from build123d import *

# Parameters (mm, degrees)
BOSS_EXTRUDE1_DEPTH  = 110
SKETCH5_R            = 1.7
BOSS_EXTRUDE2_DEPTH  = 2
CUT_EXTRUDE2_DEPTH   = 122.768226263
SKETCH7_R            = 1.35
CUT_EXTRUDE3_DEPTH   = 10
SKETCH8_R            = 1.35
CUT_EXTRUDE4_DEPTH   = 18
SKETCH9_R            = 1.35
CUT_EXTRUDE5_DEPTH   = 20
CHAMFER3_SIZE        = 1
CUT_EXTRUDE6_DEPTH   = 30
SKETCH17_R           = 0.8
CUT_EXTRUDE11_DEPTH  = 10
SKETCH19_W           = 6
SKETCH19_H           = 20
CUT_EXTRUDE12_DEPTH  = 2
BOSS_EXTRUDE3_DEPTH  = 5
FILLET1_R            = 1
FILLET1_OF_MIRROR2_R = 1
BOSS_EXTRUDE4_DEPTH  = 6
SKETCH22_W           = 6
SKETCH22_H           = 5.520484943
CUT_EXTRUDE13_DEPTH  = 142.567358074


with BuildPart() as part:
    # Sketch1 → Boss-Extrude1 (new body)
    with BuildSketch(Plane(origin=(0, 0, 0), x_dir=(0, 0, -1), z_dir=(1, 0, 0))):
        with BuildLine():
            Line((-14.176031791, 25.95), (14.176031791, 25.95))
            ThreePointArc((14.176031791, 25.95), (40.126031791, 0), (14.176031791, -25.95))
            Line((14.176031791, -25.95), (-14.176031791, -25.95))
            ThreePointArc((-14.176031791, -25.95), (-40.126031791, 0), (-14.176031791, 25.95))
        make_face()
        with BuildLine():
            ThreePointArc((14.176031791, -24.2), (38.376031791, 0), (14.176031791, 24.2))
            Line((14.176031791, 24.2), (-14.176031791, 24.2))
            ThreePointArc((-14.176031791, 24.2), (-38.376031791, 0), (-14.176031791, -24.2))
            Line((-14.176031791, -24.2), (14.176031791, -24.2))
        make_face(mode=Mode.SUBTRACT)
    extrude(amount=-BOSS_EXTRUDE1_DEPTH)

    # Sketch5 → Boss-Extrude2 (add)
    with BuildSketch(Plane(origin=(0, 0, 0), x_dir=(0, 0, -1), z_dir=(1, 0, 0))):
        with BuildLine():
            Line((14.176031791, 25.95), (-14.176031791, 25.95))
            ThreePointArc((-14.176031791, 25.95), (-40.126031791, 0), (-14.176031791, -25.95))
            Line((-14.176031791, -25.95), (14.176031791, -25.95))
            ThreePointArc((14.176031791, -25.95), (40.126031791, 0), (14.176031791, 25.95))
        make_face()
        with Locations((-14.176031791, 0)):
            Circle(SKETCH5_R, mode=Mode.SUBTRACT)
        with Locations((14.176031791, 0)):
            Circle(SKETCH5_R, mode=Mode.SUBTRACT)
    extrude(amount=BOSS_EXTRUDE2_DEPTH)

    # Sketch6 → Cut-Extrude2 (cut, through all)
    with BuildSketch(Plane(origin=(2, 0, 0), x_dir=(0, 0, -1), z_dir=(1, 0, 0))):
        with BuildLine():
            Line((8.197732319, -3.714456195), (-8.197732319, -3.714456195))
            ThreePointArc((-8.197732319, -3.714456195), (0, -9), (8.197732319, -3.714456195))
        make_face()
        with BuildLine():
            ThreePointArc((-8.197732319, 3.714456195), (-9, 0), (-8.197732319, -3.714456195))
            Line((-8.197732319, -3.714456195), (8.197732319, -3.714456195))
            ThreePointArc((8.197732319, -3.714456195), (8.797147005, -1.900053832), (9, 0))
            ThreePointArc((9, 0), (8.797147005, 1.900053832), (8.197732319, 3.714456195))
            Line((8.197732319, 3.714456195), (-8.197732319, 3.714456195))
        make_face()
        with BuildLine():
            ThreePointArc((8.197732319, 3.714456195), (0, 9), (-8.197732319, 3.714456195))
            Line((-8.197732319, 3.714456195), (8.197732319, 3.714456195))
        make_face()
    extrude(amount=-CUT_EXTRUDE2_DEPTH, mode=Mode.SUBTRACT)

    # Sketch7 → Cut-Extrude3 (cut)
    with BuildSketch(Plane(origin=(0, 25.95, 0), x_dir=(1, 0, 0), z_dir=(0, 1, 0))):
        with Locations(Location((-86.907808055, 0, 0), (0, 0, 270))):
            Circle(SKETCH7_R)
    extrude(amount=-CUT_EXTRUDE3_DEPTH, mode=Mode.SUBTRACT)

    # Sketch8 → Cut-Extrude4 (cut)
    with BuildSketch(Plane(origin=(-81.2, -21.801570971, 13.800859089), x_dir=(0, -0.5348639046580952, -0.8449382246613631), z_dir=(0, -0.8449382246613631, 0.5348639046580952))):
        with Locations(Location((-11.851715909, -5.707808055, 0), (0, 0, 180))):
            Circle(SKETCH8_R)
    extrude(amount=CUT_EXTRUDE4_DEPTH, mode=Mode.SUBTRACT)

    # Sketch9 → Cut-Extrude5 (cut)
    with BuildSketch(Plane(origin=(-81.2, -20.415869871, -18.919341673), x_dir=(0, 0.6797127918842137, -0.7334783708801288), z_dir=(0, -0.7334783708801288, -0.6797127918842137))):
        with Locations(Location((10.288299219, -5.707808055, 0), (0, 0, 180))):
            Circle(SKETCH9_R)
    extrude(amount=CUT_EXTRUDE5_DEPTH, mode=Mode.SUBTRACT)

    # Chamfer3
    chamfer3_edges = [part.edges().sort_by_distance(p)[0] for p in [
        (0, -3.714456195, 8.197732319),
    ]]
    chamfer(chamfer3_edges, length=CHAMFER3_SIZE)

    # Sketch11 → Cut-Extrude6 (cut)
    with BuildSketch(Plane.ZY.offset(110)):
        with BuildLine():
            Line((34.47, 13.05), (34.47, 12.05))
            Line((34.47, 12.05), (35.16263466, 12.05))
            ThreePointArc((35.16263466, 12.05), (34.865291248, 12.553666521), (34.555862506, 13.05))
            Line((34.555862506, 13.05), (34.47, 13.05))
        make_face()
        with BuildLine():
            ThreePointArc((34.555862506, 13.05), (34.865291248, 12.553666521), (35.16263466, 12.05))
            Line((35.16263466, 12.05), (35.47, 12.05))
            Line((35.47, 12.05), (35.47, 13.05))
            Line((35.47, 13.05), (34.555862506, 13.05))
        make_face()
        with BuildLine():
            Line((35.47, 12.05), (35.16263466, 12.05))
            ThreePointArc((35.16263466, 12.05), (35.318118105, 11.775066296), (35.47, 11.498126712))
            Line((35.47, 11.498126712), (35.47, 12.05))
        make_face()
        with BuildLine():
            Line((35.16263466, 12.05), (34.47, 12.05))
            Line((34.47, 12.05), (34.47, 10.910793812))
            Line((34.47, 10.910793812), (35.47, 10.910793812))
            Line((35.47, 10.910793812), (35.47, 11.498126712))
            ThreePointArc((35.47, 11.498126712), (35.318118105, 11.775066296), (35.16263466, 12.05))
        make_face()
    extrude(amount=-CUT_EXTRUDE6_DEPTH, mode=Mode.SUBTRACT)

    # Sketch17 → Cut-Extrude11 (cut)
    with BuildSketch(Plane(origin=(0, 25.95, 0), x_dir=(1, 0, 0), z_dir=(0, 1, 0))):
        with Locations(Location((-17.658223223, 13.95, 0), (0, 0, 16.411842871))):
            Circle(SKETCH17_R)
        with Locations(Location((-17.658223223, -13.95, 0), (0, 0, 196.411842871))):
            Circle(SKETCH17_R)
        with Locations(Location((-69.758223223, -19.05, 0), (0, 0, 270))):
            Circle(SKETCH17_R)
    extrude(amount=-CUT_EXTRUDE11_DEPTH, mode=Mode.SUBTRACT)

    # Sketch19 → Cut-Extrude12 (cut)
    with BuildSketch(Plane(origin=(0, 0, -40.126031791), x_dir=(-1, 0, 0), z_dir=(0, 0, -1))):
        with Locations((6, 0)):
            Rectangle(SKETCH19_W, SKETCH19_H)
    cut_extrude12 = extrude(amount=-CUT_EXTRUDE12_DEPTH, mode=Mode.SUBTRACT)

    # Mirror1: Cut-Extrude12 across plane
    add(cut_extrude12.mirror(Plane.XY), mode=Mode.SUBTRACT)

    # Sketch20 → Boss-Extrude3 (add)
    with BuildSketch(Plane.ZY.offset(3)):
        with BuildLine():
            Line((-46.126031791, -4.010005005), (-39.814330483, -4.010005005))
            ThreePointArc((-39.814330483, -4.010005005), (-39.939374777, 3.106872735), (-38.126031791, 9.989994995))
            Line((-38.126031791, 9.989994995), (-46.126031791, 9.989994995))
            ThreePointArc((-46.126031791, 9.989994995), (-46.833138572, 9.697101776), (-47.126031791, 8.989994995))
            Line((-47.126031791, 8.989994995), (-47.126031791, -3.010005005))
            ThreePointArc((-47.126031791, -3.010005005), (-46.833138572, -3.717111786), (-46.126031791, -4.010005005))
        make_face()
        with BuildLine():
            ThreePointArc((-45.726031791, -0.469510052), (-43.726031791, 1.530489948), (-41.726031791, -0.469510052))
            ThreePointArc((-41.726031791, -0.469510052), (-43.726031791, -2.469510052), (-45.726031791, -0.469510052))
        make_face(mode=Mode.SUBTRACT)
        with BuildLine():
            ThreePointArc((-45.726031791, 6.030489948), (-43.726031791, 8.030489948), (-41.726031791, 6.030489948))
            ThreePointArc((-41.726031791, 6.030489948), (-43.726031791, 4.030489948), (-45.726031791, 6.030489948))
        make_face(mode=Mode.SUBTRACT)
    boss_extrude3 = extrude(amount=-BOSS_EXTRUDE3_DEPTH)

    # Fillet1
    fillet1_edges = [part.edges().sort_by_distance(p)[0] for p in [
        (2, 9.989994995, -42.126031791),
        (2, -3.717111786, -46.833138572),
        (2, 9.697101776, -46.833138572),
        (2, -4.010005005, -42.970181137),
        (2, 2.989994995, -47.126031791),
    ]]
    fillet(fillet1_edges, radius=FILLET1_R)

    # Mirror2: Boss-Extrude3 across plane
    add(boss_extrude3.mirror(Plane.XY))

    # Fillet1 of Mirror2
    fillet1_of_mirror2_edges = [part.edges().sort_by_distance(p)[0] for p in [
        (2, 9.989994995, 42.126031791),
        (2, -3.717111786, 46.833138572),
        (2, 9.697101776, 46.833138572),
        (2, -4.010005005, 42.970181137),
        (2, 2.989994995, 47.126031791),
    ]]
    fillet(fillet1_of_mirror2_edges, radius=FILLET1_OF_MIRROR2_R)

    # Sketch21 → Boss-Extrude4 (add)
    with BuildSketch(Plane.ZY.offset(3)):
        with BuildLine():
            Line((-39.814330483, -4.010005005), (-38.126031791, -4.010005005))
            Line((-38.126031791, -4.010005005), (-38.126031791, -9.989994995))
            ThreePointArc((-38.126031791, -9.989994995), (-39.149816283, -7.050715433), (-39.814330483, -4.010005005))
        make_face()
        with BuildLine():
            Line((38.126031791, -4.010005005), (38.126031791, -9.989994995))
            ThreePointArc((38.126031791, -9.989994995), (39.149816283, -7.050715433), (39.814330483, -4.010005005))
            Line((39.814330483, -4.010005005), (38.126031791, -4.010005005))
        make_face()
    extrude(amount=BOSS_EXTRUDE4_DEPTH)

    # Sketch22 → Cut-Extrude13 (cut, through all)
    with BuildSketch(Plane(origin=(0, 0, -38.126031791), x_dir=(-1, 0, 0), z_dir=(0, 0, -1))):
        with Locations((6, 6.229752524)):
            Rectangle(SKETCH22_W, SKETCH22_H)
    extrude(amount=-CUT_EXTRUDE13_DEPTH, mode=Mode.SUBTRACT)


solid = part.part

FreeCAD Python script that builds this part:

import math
import FreeCAD as App
import Part
import Sketcher

V = App.Vector


def edges_at(feature, points):
    """Names of the edges that pass closest to the given points."""
    edges = feature.Shape.Edges
    near = lambda p: min(range(len(edges)), key=lambda i: edges[i].distToShape(Part.Vertex(*p))[0])
    return sorted({f"Edge{near(p) + 1}" for p in points})


def add_polygon(sketch, points):
    """Adds a closed chain of lines whose ends are joined by coincident constraints."""
    first, n = sketch.GeometryCount, len(points)
    for a, b in zip(points, points[1:] + points[:1]):
        sketch.addGeometry(Part.LineSegment(App.Vector(*a, 0), App.Vector(*b, 0)), False)
    for i in range(n):
        sketch.addConstraint(Sketcher.Constraint("Coincident", first + i, 2, first + (i + 1) % n, 1))

doc = App.newDocument("Part")
params = doc.addObject("Spreadsheet::Sheet", "Params")
for row, (alias, value) in enumerate([
    ("sketch1_radius", "24.2 mm"),
    ("sketch1_radius2", "25.95 mm"),
    ("pad1_length", "110 mm"),
    ("sketch2_diameter", "3.4 mm"),
    ("sketch2_radius", "25.95 mm"),
    ("pad2_length", "2 mm"),
    ("sketch3_radius", "9 mm"),
    ("sketch4_diameter", "2.7 mm"),
    ("pocket2_length", "10 mm"),
    ("sketch5_diameter", "2.7 mm"),
    ("pocket3_length", "18 mm"),
    ("sketch6_diameter", "2.7 mm"),
    ("pocket4_length", "20 mm"),
    ("chamfer_size", "1 mm"),
    ("sketch7_height", "1 mm"),
    ("pocket5_length", "30 mm"),
    ("sketch8_diameter", "1.6 mm"),
    ("pocket6_length", "10 mm"),
    ("sketch9_width", "6 mm"),
    ("sketch9_height", "20 mm"),
    ("pocket7_length", "2 mm"),
    ("sketch10_diameter", "4 mm"),
    ("sketch10_radius", "1 mm"),
    ("sketch10_width", "12 mm"),
    ("sketch10_height", "8 mm"),
    ("sketch10_radius2", "25.95 mm"),
    ("pad3_length", "5 mm"),
    ("fillet_radius", "1 mm"),
    ("fillet2_radius", "1 mm"),
    ("sketch11_radius", "25.95 mm"),
    ("sketch11_height", "23.95 mm"),
    ("pad4_length", "6 mm"),
    ("sketch12_width", "6 mm"),
], start=1):
    params.set(f"A{row}", alias)
    params.set(f"B{row}", "=" + value)
    params.setAlias(f"B{row}", alias)

body = doc.addObject("PartDesign::Body", "Body")

# Sketch on YZ plane
sketch1 = body.newObject("Sketcher::SketchObject", "Sketch")
sketch1.AttachmentSupport = (doc.getObject("YZ_Plane"), [""])
sketch1.MapMode = "FlatFace"
sketch1.addGeometry([
    Part.LineSegment(V(26, -14, 0), V(26, 14, 0)),  # 0
    Part.ArcOfCircle(Part.Circle(V(0, 14, 0), V(0, 0, 1), 26), math.radians(0), math.radians(180)),  # 1
    Part.LineSegment(V(-26, 14, 0), V(-26, -14, 0)),  # 2
    Part.ArcOfCircle(Part.Circle(V(0, -14, 0), V(0, 0, 1), 26), math.radians(180), math.radians(360)),  # 3
    Part.LineSegment(V(-24, -14, 0), V(-24, 14, 0)),  # 4
    Part.ArcOfCircle(Part.Circle(V(0, 14, 0), V(0, 0, 1), 24), math.radians(0), math.radians(180)),  # 5
    Part.LineSegment(V(24, 14, 0), V(24, -14, 0)),  # 6
    Part.ArcOfCircle(Part.Circle(V(0, -14, 0), V(0, 0, 1), 24), math.radians(180), math.radians(360)),  # 7
], False)
sketch1.addConstraint([
    Sketcher.Constraint("Tangent", 0, 2, 1, 1),
    Sketcher.Constraint("Tangent", 1, 2, 2, 1),
    Sketcher.Constraint("Tangent", 2, 2, 3, 1),
    Sketcher.Constraint("Tangent", 3, 2, 0, 1),
    Sketcher.Constraint("Tangent", 4, 2, 5, 2),
    Sketcher.Constraint("Tangent", 5, 1, 6, 1),
    Sketcher.Constraint("Tangent", 6, 2, 7, 2),
    Sketcher.Constraint("Tangent", 7, 1, 4, 1),
    Sketcher.Constraint("Vertical", 0),
    Sketcher.Constraint("Vertical", 2),
    Sketcher.Constraint("Vertical", 4),
    Sketcher.Constraint("Vertical", 6),
    Sketcher.Constraint("Coincident", 5, 3, 1, 3),
    Sketcher.Constraint("Symmetric", 1, 3, 3, 3, -1, 1),
    Sketcher.Constraint("Horizontal", 7, 3, 2, 2),
    Sketcher.Constraint("Radius", 5, 24.2),
    Sketcher.Constraint("Radius", 1, 25.95),
    Sketcher.Constraint("DistanceY", 0, 1, 0, 2, 28.352064),
])
sketch1.setExpression("Constraints[15]", "Params.sketch1_radius")
sketch1.setExpression("Constraints[16]", "Params.sketch1_radius2")
pad1 = body.newObject("PartDesign::Pad", "Pad")
pad1.Profile = sketch1
pad1.setExpression("Length", "Params.pad1_length")
pad1.Reversed = True

# Sketch on YZ plane
sketch2 = body.newObject("Sketcher::SketchObject", "Sketch001")
sketch2.AttachmentSupport = (doc.getObject("YZ_Plane"), [""])
sketch2.MapMode = "FlatFace"
sketch2.addGeometry([
    Part.LineSegment(V(25.9, -14.2, 0), V(25.9, 14.2, 0)),  # 0
    Part.ArcOfCircle(Part.Circle(V(0, 14.2, 0), V(0, 0, 1), 25.9), math.radians(0), math.radians(180)),  # 1
    Part.LineSegment(V(-25.9, 14.2, 0), V(-25.9, -14.2, 0)),  # 2
    Part.ArcOfCircle(Part.Circle(V(0, -14.2, 0), V(0, 0, 1), 25.9), math.radians(180), math.radians(360)),  # 3
    Part.Circle(V(0, 14.2, 0), V(0, 0, 1), 1.7),  # 4
    Part.Circle(V(0, -14.2, 0), V(0, 0, 1), 1.7),  # 5
], False)
sketch2.addConstraint([
    Sketcher.Constraint("Tangent", 0, 2, 1, 1),
    Sketcher.Constraint("Tangent", 1, 2, 2, 1),
    Sketcher.Constraint("Tangent", 2, 2, 3, 1),
    Sketcher.Constraint("Tangent", 3, 2, 0, 1),
    Sketcher.Constraint("Vertical", 0),
    Sketcher.Constraint("Vertical", 2),
    Sketcher.Constraint("Coincident", 4, 3, 1, 3),
    Sketcher.Constraint("Coincident", 5, 3, 3, 3),
    Sketcher.Constraint("Equal", 4, 5),
    Sketcher.Constraint("Symmetric", 1, 3, 3, 3, -1, 1),
    Sketcher.Constraint("Diameter", 4, 3.4),
    Sketcher.Constraint("Radius", 1, 25.95),
    Sketcher.Constraint("DistanceY", 0, 1, 0, 2, 28.352064),
])
sketch2.setExpression("Constraints[10]", "Params.sketch2_diameter")
sketch2.setExpression("Constraints[11]", "Params.sketch2_radius")
pad2 = body.newObject("PartDesign::Pad", "Pad001")
pad2.Profile = sketch2
pad2.setExpression("Length", "Params.pad2_length")

# Sketch on YZ plane
sketch3 = body.newObject("Sketcher::SketchObject", "Sketch002")
sketch3.AttachmentSupport = (doc.getObject("YZ_Plane"), [""])
sketch3.MapMode = "FlatFace"
sketch3.AttachmentOffset = App.Placement(V(0, 0, 2), App.Rotation())
sketch3.addGeometry([
    Part.ArcOfCircle(Part.Circle(V(0, 0, 0), V(0, 0, 1), 9), math.radians(114), math.radians(246)),  # 0
    Part.ArcOfCircle(Part.Circle(V(0, 0, 0), V(0, 0, 1), 9), math.radians(-114), math.radians(-90)),  # 1
    Part.ArcOfCircle(Part.Circle(V(0, 0, 0), V(0, 0, 1), 9), math.radians(-90), math.radians(-66)),  # 2
    Part.ArcOfCircle(Part.Circle(V(0, 0, 0), V(0, 0, 1), 9), math.radians(-66), math.radians(66)),  # 3
    Part.ArcOfCircle(Part.Circle(V(0, 0, 0), V(0, 0, 1), 9), math.radians(66), math.radians(114)),  # 4
], False)
sketch3.addConstraint([
    Sketcher.Constraint("Tangent", 0, 2, 1, 1),
    Sketcher.Constraint("Tangent", 1, 2, 2, 1),
    Sketcher.Constraint("Tangent", 2, 2, 3, 1),
    Sketcher.Constraint("Tangent", 3, 2, 4, 1),
    Sketcher.Constraint("Tangent", 4, 2, 0, 1),
    Sketcher.Constraint("Coincident", 0, 3, -1, 1),
    Sketcher.Constraint("Coincident", 2, 3, -1, 1),
    Sketcher.Constraint("PointOnObject", 1, 2, -2),
    Sketcher.Constraint("Horizontal", 0, 2, 2, 2),
    Sketcher.Constraint("Horizontal", 3, 2, 4, 2),
    Sketcher.Constraint("Vertical", 2, 2, 3, 2),
    Sketcher.Constraint("Radius", 0, 9.0),
    Sketcher.Constraint("DistanceX", 0, 2, -1, 1, 3.714456),
])
sketch3.setExpression("Constraints[11]", "Params.sketch3_radius")
pocket1 = body.newObject("PartDesign::Pocket", "Pocket")
pocket1.Profile = sketch3
pocket1.Type = "ThroughAll"

# Sketch on XZ plane
sketch4 = body.newObject("Sketcher::SketchObject", "Sketch003")
sketch4.AttachmentSupport = (doc.getObject("XZ_Plane"), [""])
sketch4.MapMode = "FlatFace"
sketch4.AttachmentOffset = App.Placement(V(0, 0, -25.95), App.Rotation())
sketch4.addGeometry(Part.Circle(V(-86.9, 0, 0), V(0, 0, 1), 1.4), False)
sketch4.addConstraint([
    Sketcher.Constraint("PointOnObject", 0, 3, -1),
    Sketcher.Constraint("Diameter", 0, 2.7),
    Sketcher.Constraint("DistanceX", 0, 3, -1, 1, 86.907808),
])
sketch4.setExpression("Constraints[1]", "Params.sketch4_diameter")
pocket2 = body.newObject("PartDesign::Pocket", "Pocket001")
pocket2.Profile = sketch4
pocket2.setExpression("Length", "Params.pocket2_length")
pocket2.Reversed = True

# Sketch on an angled plane
sketch5 = body.newObject("Sketcher::SketchObject", "Sketch004")
sketch5.Placement = App.Placement(V(-81.2, -21.801571, 13.800859), App.Rotation(V(0, -0.534863905, -0.844938225), V(1.000000001, 0, 0), V(0, -0.844938225, 0.534863905), "ZXY"))
sketch5.addGeometry(Part.Circle(V(-11.9, -5.7, 0), V(0, 0, 1), 1.4), False)
sketch5.addConstraint([
    Sketcher.Constraint("Diameter", 0, 2.7),
    Sketcher.Constraint("DistanceY", 0, 3, -1, 1, 5.707808),
    Sketcher.Constraint("DistanceX", 0, 3, -1, 1, 11.851716),
])
sketch5.setExpression("Constraints[0]", "Params.sketch5_diameter")
pocket3 = body.newObject("PartDesign::Pocket", "Pocket002")
pocket3.Profile = sketch5
pocket3.setExpression("Length", "Params.pocket3_length")
pocket3.Reversed = True

# Sketch on an angled plane
sketch6 = body.newObject("Sketcher::SketchObject", "Sketch005")
sketch6.Placement = App.Placement(V(-81.2, -20.41587, -18.919342), App.Rotation(V(0, 0.679712792, -0.733478371), V(1, 0, 0), V(0, -0.733478371, -0.679712792), "ZXY"))
sketch6.addGeometry(Part.Circle(V(10.3, -5.7, 0), V(0, 0, 1), 1.4), False)
sketch6.addConstraint([
    Sketcher.Constraint("Diameter", 0, 2.7),
    Sketcher.Constraint("DistanceX", -1, 1, 0, 3, 10.288299),
    Sketcher.Constraint("DistanceY", 0, 3, -1, 1, 5.707808),
])
sketch6.setExpression("Constraints[0]", "Params.sketch6_diameter")
pocket4 = body.newObject("PartDesign::Pocket", "Pocket003")
pocket4.Profile = sketch6
pocket4.setExpression("Length", "Params.pocket4_length")
pocket4.Reversed = True
doc.recompute()

chamfer = body.newObject("PartDesign::Chamfer", "Chamfer")
chamfer.Base = (pocket4, edges_at(pocket4, [(0, -9, 0)]))
chamfer.setExpression("Size", "Params.chamfer_size")

# Sketch on YZ plane
sketch7 = body.newObject("Sketcher::SketchObject", "Sketch006")
sketch7.AttachmentSupport = (doc.getObject("YZ_Plane"), [""])
sketch7.MapMode = "FlatFace"
sketch7.AttachmentOffset = App.Placement(V(0, 0, -110), App.Rotation())
add_polygon(sketch7, [(13.1, 34.5), (10.9, 34.5), (10.9, 35.5), (13.1, 35.5)])  # lines 0-3
sketch7.addConstraint([
    Sketcher.Constraint("Horizontal", 0),
    Sketcher.Constraint("Vertical", 1),
    Sketcher.Constraint("Horizontal", 2),
    Sketcher.Constraint("Vertical", 3),
    Sketcher.Constraint("DistanceY", 1, 1, 1, 2, 1.0),
    Sketcher.Constraint("DistanceY", -1, 1, 0, 2, 34.47),
    Sketcher.Constraint("DistanceX", -1, 1, 2, 2, 13.05),
    Sketcher.Constraint("DistanceX", 0, 2, 0, 1, 2.139206),
])
sketch7.setExpression("Constraints[8]", "Params.sketch7_height")
pocket5 = body.newObject("PartDesign::Pocket", "Pocket004")
pocket5.Profile = sketch7
pocket5.setExpression("Length", "Params.pocket5_length")
pocket5.Reversed = True

# Sketch on XZ plane
sketch8 = body.newObject("Sketcher::SketchObject", "Sketch007")
sketch8.AttachmentSupport = (doc.getObject("XZ_Plane"), [""])
sketch8.MapMode = "FlatFace"
sketch8.AttachmentOffset = App.Placement(V(0, 0, -25.95), App.Rotation())
sketch8.addGeometry([
    Part.Circle(V(-17.7, -13.9, 0), V(0, 0, 1), 0.8),
    Part.Circle(V(-17.7, 13.9, 0), V(0, 0, 1), 0.8),
    Part.Circle(V(-69.8, 19.1, 0), V(0, 0, 1), 0.8),
], False)
sketch8.addConstraint([
    Sketcher.Constraint("Equal", 0, 1),
    Sketcher.Constraint("Equal", 1, 2),
    Sketcher.Constraint("Symmetric", 0, 3, 1, 3, -1),
    Sketcher.Constraint("Diameter", 0, 1.6),
    Sketcher.Constraint("DistanceY", 0, 3, 2, 3, 33.0),
    Sketcher.Constraint("DistanceY", 0, 3, 1, 3, 27.9),
    Sketcher.Constraint("DistanceX", 2, 3, 1, 3, 52.1),
    Sketcher.Constraint("DistanceX", 0, 3, -1, 1, 17.658223),
])
sketch8.setExpression("Constraints[3]", "Params.sketch8_diameter")
pocket6 = body.newObject("PartDesign::Pocket", "Pocket005")
pocket6.Profile = sketch8
pocket6.setExpression("Length", "Params.pocket6_length")
pocket6.Reversed = True

# Sketch on XY plane
sketch9 = body.newObject("Sketcher::SketchObject", "Sketch008")
sketch9.AttachmentSupport = (doc.getObject("XY_Plane"), [""])
sketch9.MapMode = "FlatFace"
sketch9.AttachmentOffset = App.Placement(V(0, 0, -40.126032), App.Rotation())
add_polygon(sketch9, [(-3, 10), (-3, -10), (-9, -10), (-9, 10)])  # lines 0-3
sketch9.addConstraint([
    Sketcher.Constraint("Vertical", 0),
    Sketcher.Constraint("Horizontal", 1),
    Sketcher.Constraint("Vertical", 2),
    Sketcher.Constraint("Horizontal", 3),
    Sketcher.Constraint("DistanceX", 1, 2, 1, 1, 6.0),
    Sketcher.Constraint("DistanceY", 0, 2, 0, 1, 20.0),
    Sketcher.Constraint("DistanceX", 0, 2, -1, 1, 3.0),
    Sketcher.Constraint("DistanceY", 0, 2, -1, 1, 10.0),
])
sketch9.setExpression("Constraints[8]", "Params.sketch9_width")
sketch9.setExpression("Constraints[9]", "Params.sketch9_height")
pocket7 = body.newObject("PartDesign::Pocket", "Pocket006")
pocket7.Profile = sketch9
pocket7.setExpression("Length", "Params.pocket7_length")
pocket7.Reversed = True
doc.recompute()

mirrored = body.newObject("PartDesign::Mirrored", "Mirrored")
mirrored.Originals = [pocket7]
mirrored.MirrorPlane = (doc.getObject("XY_Plane"), [""])
body.Tip = mirrored

# Sketch on YZ plane
sketch10 = body.newObject("Sketcher::SketchObject", "Sketch009")
sketch10.AttachmentSupport = (doc.getObject("YZ_Plane"), [""])
sketch10.MapMode = "FlatFace"
sketch10.AttachmentOffset = App.Placement(V(0, 0, -3), App.Rotation())
sketch10.addGeometry([
    Part.LineSegment(V(-4, -46.1, 0), V(-4, -39.8, 0)),  # 0
    Part.ArcOfCircle(Part.Circle(V(0, -14.2, 0), V(0, 0, 1), 25.9), math.radians(-99), math.radians(-67)),  # 1
    Part.LineSegment(V(10, -38.1, 0), V(10, -46.1, 0)),  # 2
    Part.ArcOfCircle(Part.Circle(V(9, -46.1, 0), V(0, 0, 1), 1), math.radians(-90), math.radians(0)),  # 3
    Part.LineSegment(V(9, -47.1, 0), V(-3, -47.1, 0)),  # 4
    Part.ArcOfCircle(Part.Circle(V(-3, -46.1, 0), V(0, 0, 1), 1), math.radians(-180), math.radians(-90)),  # 5
    Part.Circle(V(-0.5, -43.7, 0), V(0, 0, 1), 2),  # 6
    Part.Circle(V(6, -43.7, 0), V(0, 0, 1), 2),  # 7
], False)
sketch10.addConstraint([
    Sketcher.Constraint("Coincident", 0, 2, 1, 1),
    Sketcher.Constraint("Coincident", 1, 2, 2, 1),
    Sketcher.Constraint("Tangent", 2, 2, 3, 2),
    Sketcher.Constraint("Tangent", 3, 1, 4, 1),
    Sketcher.Constraint("Tangent", 4, 2, 5, 2),
    Sketcher.Constraint("Tangent", 5, 1, 0, 1),
    Sketcher.Constraint("Vertical", 0),
    Sketcher.Constraint("Vertical", 2),
    Sketcher.Constraint("Horizontal", 4),
    Sketcher.Constraint("Equal", 3, 5),
    Sketcher.Constraint("Equal", 6, 7),
    Sketcher.Constraint("PointOnObject", 1, 3, -2),
    Sketcher.Constraint("Horizontal", 6, 3, 7, 3),
    Sketcher.Constraint("Diameter", 6, 4.0),
    Sketcher.Constraint("Radius", 3, 1.0),
    Sketcher.Constraint("DistanceX", 4, 2, 4, 1, 12.0),
    Sketcher.Constraint("DistanceY", 2, 2, 2, 1, 8.0),
    Sketcher.Constraint("Radius", 1, 25.95),
    Sketcher.Constraint("DistanceY", 5, 3, 6, 3, 2.4),
    Sketcher.Constraint("DistanceX", 6, 3, 7, 3, 6.5),
    Sketcher.Constraint("DistanceY", 3, 3, 1, 3, 31.95),
    Sketcher.Constraint("DistanceY", 1, 3, -1, 1, 14.176032),
    Sketcher.Constraint("DistanceX", 6, 3, -1, 1, 0.46951),
])
sketch10.setExpression("Constraints[13]", "Params.sketch10_diameter")
sketch10.setExpression("Constraints[14]", "Params.sketch10_radius")
sketch10.setExpression("Constraints[15]", "Params.sketch10_width")
sketch10.setExpression("Constraints[16]", "Params.sketch10_height")
sketch10.setExpression("Constraints[17]", "Params.sketch10_radius2")
pad3 = body.newObject("PartDesign::Pad", "Pad002")
pad3.Profile = sketch10
pad3.setExpression("Length", "Params.pad3_length")
doc.recompute()

fillet = body.newObject("PartDesign::Fillet", "Fillet")
fillet.Base = (pad3, edges_at(pad3, [
    (2, 9.99, -42.126),
    (2, -3.717, -46.833),
    (2, 9.697, -46.833),
    (2, -4.01, -42.97),
    (2, 2.99, -47.126),
]))
fillet.setExpression("Radius", "Params.fillet_radius")
doc.recompute()

mirrored2 = body.newObject("PartDesign::Mirrored", "Mirrored001")
mirrored2.Originals = [pad3]
mirrored2.MirrorPlane = (doc.getObject("XY_Plane"), [""])
body.Tip = mirrored2
doc.recompute()

fillet2 = body.newObject("PartDesign::Fillet", "Fillet001")
fillet2.Base = (mirrored2, edges_at(mirrored2, [
    (2, 9.99, 42.126),
    (2, -3.717, 46.833),
    (2, 9.697, 46.833),
    (2, -4.01, 42.97),
    (2, 2.99, 47.126),
]))
fillet2.setExpression("Radius", "Params.fillet2_radius")

# Sketch on YZ plane
sketch11 = body.newObject("Sketcher::SketchObject", "Sketch010")
sketch11.AttachmentSupport = (doc.getObject("YZ_Plane"), [""])
sketch11.MapMode = "FlatFace"
sketch11.AttachmentOffset = App.Placement(V(0, 0, -3), App.Rotation())
sketch11.addGeometry([
    Part.LineSegment(V(-4, -38.1, 0), V(-4, -39.8, 0)),  # 0
    Part.ArcOfCircle(Part.Circle(V(0, -14.2, 0), V(0, 0, 1), 26), math.radians(-112.64), math.radians(-98.89)),  # 1
    Part.LineSegment(V(-10, -38.1, 0), V(-4, -38.1, 0)),  # 2
    Part.LineSegment(V(-4, 38.1, 0), V(-10, 38.1, 0)),  # 3
    Part.ArcOfCircle(Part.Circle(V(0, 14.2, 0), V(0, 0, 1), 26), math.radians(98.89), math.radians(112.64)),  # 4
    Part.LineSegment(V(-4, 39.8, 0), V(-4, 38.1, 0)),  # 5
], False)
sketch11.addConstraint([
    Sketcher.Constraint("Coincident", 0, 2, 1, 2),
    Sketcher.Constraint("Coincident", 1, 1, 2, 1),
    Sketcher.Constraint("Coincident", 2, 2, 0, 1),
    Sketcher.Constraint("Coincident", 3, 2, 4, 2),
    Sketcher.Constraint("Coincident", 4, 1, 5, 1),
    Sketcher.Constraint("Coincident", 5, 2, 3, 1),
    Sketcher.Constraint("Vertical", 0),
    Sketcher.Constraint("Horizontal", 2),
    Sketcher.Constraint("Horizontal", 3),
    Sketcher.Constraint("Vertical", 5),
    Sketcher.Constraint("Equal", 1, 4),
    Sketcher.Constraint("Symmetric", 1, 3, 4, 3, -1, 1),
    Sketcher.Constraint("Symmetric", 1, 1, 3, 2, -1),
    Sketcher.Constraint("Vertical", 2, 2, 4, 1),
    Sketcher.Constraint("Radius", 1, 25.95),
    Sketcher.Constraint("DistanceY", 1, 1, 1, 3, 23.95),
    Sketcher.Constraint("DistanceY", 0, 2, 0, 1, 1.688299),
    Sketcher.Constraint("DistanceY", 1, 3, -1, 1, 14.176032),
])
sketch11.setExpression("Constraints[14]", "Params.sketch11_radius")
sketch11.setExpression("Constraints[15]", "Params.sketch11_height")
pad4 = body.newObject("PartDesign::Pad", "Pad003")
pad4.Profile = sketch11
pad4.setExpression("Length", "Params.pad4_length")
pad4.Reversed = True

# Sketch on XY plane
sketch12 = body.newObject("Sketcher::SketchObject", "Sketch011")
sketch12.AttachmentSupport = (doc.getObject("XY_Plane"), [""])
sketch12.MapMode = "FlatFace"
sketch12.AttachmentOffset = App.Placement(V(0, 0, -38.126032), App.Rotation())
add_polygon(sketch12, [(-3, 9), (-3, 3), (-9, 3), (-9, 9)])  # lines 0-3
sketch12.addConstraint([
    Sketcher.Constraint("Vertical", 0),
    Sketcher.Constraint("Horizontal", 1),
    Sketcher.Constraint("Vertical", 2),
    Sketcher.Constraint("Horizontal", 3),
    Sketcher.Constraint("DistanceX", 1, 2, 1, 1, 6.0),
    Sketcher.Constraint("DistanceX", 0, 2, -1, 1, 3.0),
    Sketcher.Constraint("DistanceY", 0, 2, 0, 1, 5.520485),
    Sketcher.Constraint("DistanceY", -1, 1, 0, 2, 3.46951),
])
sketch12.setExpression("Constraints[8]", "Params.sketch12_width")
pocket8 = body.newObject("PartDesign::Pocket", "Pocket007")
pocket8.Profile = sketch12
pocket8.Type = "ThroughAll"
pocket8.Reversed = True

doc.recompute()
